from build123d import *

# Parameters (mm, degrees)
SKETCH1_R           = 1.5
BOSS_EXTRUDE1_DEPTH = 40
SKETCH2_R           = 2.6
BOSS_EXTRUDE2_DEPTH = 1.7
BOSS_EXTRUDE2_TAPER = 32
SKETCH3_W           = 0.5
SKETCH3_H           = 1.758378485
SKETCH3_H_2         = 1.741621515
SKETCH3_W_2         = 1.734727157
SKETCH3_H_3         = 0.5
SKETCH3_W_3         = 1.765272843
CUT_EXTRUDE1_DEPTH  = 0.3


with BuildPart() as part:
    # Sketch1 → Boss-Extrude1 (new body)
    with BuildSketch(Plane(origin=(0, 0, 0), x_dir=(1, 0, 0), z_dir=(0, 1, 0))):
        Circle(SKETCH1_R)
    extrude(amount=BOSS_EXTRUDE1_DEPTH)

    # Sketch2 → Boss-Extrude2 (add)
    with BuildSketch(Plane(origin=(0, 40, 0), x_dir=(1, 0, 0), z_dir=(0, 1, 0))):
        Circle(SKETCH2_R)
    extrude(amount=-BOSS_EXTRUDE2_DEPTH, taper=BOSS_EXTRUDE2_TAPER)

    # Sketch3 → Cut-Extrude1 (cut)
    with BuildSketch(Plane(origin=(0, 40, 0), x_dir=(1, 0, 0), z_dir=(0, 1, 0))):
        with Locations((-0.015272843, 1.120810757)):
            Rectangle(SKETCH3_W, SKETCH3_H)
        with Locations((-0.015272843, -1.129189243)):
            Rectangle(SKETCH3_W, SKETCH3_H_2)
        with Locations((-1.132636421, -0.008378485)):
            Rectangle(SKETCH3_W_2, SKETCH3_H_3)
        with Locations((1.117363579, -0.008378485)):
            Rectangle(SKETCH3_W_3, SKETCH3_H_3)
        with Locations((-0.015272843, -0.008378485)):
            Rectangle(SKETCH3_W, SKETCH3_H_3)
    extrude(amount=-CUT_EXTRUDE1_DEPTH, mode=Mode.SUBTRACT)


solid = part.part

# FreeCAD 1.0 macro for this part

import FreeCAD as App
import Part
import Sketcher

V = App.Vector
Q = App.Units.Quantity

doc = App.newDocument("Part")
body = doc.addObject("PartDesign::Body", "Body")

sketch1 = body.newObject("Sketcher::SketchObject", "Sketch")
sketch1.AttachmentSupport = (doc.getObject("XZ_Plane"), [""])
sketch1.MapMode = "FlatFace"
sketch1.addGeometry(Part.Circle(V(0, 0, 0), V(0, 0, 1), 1.5), False)
sketch1.addConstraint(Sketcher.Constraint("Coincident", 0, 3, -1, 1))
sketch1.addConstraint(Sketcher.Constraint("Diameter", 0, Q("3 mm")))
pad1 = body.newObject("PartDesign::Pad", "Pad")
pad1.Profile = sketch1
pad1.Length = 40
pad1.Reversed = True

sketch2 = body.newObject("Sketcher::SketchObject", "Sketch001")
sketch2.AttachmentSupport = (doc.getObject("XZ_Plane"), [""])
sketch2.MapMode = "FlatFace"
sketch2.AttachmentOffset = App.Placement(V(0, 0, -40), App.Rotation())
sketch2.addGeometry(Part.Circle(V(0, 0, 0), V(0, 0, 1), 2.6), False)
sketch2.addConstraint(Sketcher.Constraint("Coincident", 0, 3, -1, 1))
sketch2.addConstraint(Sketcher.Constraint("Diameter", 0, Q("5.2 mm")))
pad2 = body.newObject("PartDesign::Pad", "Pad001")
pad2.Profile = sketch2
pad2.Length = 1.7
pad2.TaperAngle = -32

sketch3 = body.newObject("Sketcher::SketchObject", "Sketch002")
sketch3.AttachmentSupport = (doc.getObject("XZ_Plane"), [""])
sketch3.MapMode = "FlatFace"
sketch3.AttachmentOffset = App.Placement(V(0, 0, -40), App.Rotation())
sketch3.addGeometry(Part.LineSegment(V(-0.3, -2, 0), V(-0.3, -0.2, 0)), False)
sketch3.addGeometry(Part.LineSegment(V(-0.3, -0.2, 0), V(-2, -0.2, 0)), False)
sketch3.addGeometry(Part.LineSegment(V(-2, -0.2, 0), V(-2, 0.3, 0)), False)
sketch3.addGeometry(Part.LineSegment(V(-2, 0.3, 0), V(-0.3, 0.3, 0)), False)
sketch3.addGeometry(Part.LineSegment(V(-0.3, 0.3, 0), V(-0.3, 2, 0)), False)
sketch3.addGeometry(Part.LineSegment(V(-0.3, 2, 0), V(0.2, 2, 0)), False)
sketch3.addGeometry(Part.LineSegment(V(0.2, 2, 0), V(0.2, 0.3, 0)), False)
sketch3.addGeometry(Part.LineSegment(V(0.2, 0.3, 0), V(2, 0.3, 0)), False)
sketch3.addGeometry(Part.LineSegment(V(2, 0.3, 0), V(2, -0.2, 0)), False)
sketch3.addGeometry(Part.LineSegment(V(2, -0.2, 0), V(0.2, -0.2, 0)), False)
sketch3.addGeometry(Part.LineSegment(V(0.2, -0.2, 0), V(0.2, -2, 0)), False)
sketch3.addGeometry(Part.LineSegment(V(0.2, -2, 0), V(-0.3, -2, 0)), False)
sketch3.addConstraint(Sketcher.Constraint("Coincident", 0, 2, 1, 1))
sketch3.addConstraint(Sketcher.Constraint("Coincident", 1, 2, 2, 1))
sketch3.addConstraint(Sketcher.Constraint("Coincident", 2, 2, 3, 1))
sketch3.addConstraint(Sketcher.Constraint("Coincident", 3, 2, 4, 1))
sketch3.addConstraint(Sketcher.Constraint("Coincident", 4, 2, 5, 1))
sketch3.addConstraint(Sketcher.Constraint("Coincident", 5, 2, 6, 1))
sketch3.addConstraint(Sketcher.Constraint("Coincident", 6, 2, 7, 1))
sketch3.addConstraint(Sketcher.Constraint("Coincident", 7, 2, 8, 1))
sketch3.addConstraint(Sketcher.Constraint("Coincident", 8, 2, 9, 1))
sketch3.addConstraint(Sketcher.Constraint("Coincident", 9, 2, 10, 1))
sketch3.addConstraint(Sketcher.Constraint("Coincident", 10, 2, 11, 1))
sketch3.addConstraint(Sketcher.Constraint("Coincident", 11, 2, 0, 1))
sketch3.addConstraint(Sketcher.Constraint("Vertical", 0))
sketch3.addConstraint(Sketcher.Constraint("Horizontal", 1))
sketch3.addConstraint(Sketcher.Constraint("Vertical", 2))
sketch3.addConstraint(Sketcher.Constraint("Horizontal", 3))
sketch3.addConstraint(Sketcher.Constraint("Vertical", 4))
sketch3.addConstraint(Sketcher.Constraint("Horizontal", 5))
sketch3.addConstraint(Sketcher.Constraint("Vertical", 6))
sketch3.addConstraint(Sketcher.Constraint("Horizontal", 7))
sketch3.addConstraint(Sketcher.Constraint("Vertical", 8))
sketch3.addConstraint(Sketcher.Constraint("Horizontal", 9))
sketch3.addConstraint(Sketcher.Constraint("Vertical", 10))
sketch3.addConstraint(Sketcher.Constraint("Horizontal", 11))
sketch3.addConstraint(Sketcher.Constraint("Symmetric", 2, 2, 7, 2, -2))
sketch3.addConstraint(Sketcher.Constraint("Symmetric", 5, 2, 10, 2, -1))
sketch3.addConstraint(Sketcher.Constraint("Horizontal", 1, 2, 8, 2))
sketch3.addConstraint(Sketcher.Constraint("Vertical", 0, 2, 3, 2))
sketch3.addConstraint(Sketcher.Constraint("Equal", 11, 2))
sketch3.addConstraint(Sketcher.Constraint("DistanceX", 5, 1, 5, 2, Q("0.5 mm")))
sketch3.addConstraint(Sketcher.Constraint("DistanceX", 1, 2, -1, 1, Q("2 mm")))
sketch3.addConstraint(Sketcher.Constraint("DistanceY", -1, 1, 4, 2, Q("2 mm")))
sketch3.addConstraint(Sketcher.Constraint("DistanceY", 0, 1, 0, 2, Q("1.758378 mm")))
sketch3.addConstraint(Sketcher.Constraint("DistanceX", 1, 2, 1, 1, Q("1.734727 mm")))
pocket1 = body.newObject("PartDesign::Pocket", "Pocket")
pocket1.Profile = sketch3
pocket1.Length = 0.3
pocket1.Reversed = True

doc.recompute()
